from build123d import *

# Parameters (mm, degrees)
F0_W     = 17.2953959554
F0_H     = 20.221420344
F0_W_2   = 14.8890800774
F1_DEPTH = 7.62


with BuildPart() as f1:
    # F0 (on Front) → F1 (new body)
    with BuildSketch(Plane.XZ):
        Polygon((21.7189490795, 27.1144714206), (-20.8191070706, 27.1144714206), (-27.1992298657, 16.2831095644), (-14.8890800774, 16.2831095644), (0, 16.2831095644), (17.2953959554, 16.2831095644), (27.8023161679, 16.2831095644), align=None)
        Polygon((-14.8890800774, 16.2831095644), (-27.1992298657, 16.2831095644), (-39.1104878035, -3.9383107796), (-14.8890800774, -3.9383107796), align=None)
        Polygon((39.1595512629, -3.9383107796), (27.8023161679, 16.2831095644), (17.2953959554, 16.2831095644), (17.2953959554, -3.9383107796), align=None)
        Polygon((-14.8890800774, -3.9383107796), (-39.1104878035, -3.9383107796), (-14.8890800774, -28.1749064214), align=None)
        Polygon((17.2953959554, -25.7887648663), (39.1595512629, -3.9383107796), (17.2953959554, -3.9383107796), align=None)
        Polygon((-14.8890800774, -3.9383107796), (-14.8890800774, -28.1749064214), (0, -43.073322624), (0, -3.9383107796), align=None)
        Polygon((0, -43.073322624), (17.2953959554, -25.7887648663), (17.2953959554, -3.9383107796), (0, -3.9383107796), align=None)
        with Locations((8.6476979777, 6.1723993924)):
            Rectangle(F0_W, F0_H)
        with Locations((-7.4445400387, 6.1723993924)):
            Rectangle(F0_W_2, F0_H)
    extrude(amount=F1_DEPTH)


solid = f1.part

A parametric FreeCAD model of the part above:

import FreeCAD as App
import Part
import Sketcher

V = App.Vector
Q = App.Units.Quantity


def add_polygon(sketch, points):
    """Adds a closed chain of lines whose ends are joined by coincident constraints."""
    first, n = sketch.GeometryCount, len(points)
    for a, b in zip(points, points[1:] + points[:1]):
        sketch.addGeometry(Part.LineSegment(App.Vector(*a, 0), App.Vector(*b, 0)), False)
    for i in range(n):
        sketch.addConstraint(Sketcher.Constraint("Coincident", first + i, 2, first + (i + 1) % n, 1))

doc = App.newDocument("Part")
body = doc.addObject("PartDesign::Body", "Body")

# Sketch on XZ plane
sketch1 = body.newObject("Sketcher::SketchObject", "Sketch")
sketch1.AttachmentSupport = (doc.getObject("XZ_Plane"), [""])
sketch1.MapMode = "FlatFace"
add_polygon(sketch1, [(21.718949, 27.114471), (-20.819107, 27.114471), (-27.19923, 16.28311), (-39.110488, -3.938311), (-14.88908, -28.174906), (0, -43.073323), (17.295396, -25.788765), (39.159551, -3.938311), (27.802316, 16.28311)])  # lines 0-8
sketch1.addConstraint([
    Sketcher.Constraint("Horizontal", 0),
    Sketcher.Constraint("PointOnObject", 4, 2, -2),
    Sketcher.Constraint("Parallel", 1, 2),
    Sketcher.Constraint("Parallel", 3, 4),
    Sketcher.Constraint("Perpendicular", 4, 5),
    Sketcher.Constraint("Parallel", 5, 6),
    Sketcher.Constraint("Parallel", 7, 8),
    Sketcher.Constraint("Horizontal", 2, 2, 6, 2),
    Sketcher.Constraint("Horizontal", 1, 2, 7, 2),
    Sketcher.Constraint("DistanceY", 4, 2, -1, 1, Q("1.6958001 in")),
    Sketcher.Constraint("Distance", 6, Q("30.910898 mm")),
    Sketcher.Constraint("Distance", 4, Q("21.062942 mm")),
    Sketcher.Constraint("Distance", 5, Q("24.451721 mm")),
    Sketcher.Constraint("Distance", 8, Q("12.422792 mm")),
    Sketcher.Constraint("DistanceX", 0, 2, 0, 1, Q("42.538056 mm")),
    Sketcher.Constraint("DistanceY", -1, 1, 0, 2, Q("27.114471 mm")),
    Sketcher.Constraint("DistanceX", 1, 2, -1, 1, Q("27.19923 mm")),
    Sketcher.Constraint("DistanceY", -1, 1, 1, 2, Q("16.28311 mm")),
])
pad1 = body.newObject("PartDesign::Pad", "Pad")
pad1.Profile = sketch1
pad1.Length = Q("0.3 in")

doc.recompute()
